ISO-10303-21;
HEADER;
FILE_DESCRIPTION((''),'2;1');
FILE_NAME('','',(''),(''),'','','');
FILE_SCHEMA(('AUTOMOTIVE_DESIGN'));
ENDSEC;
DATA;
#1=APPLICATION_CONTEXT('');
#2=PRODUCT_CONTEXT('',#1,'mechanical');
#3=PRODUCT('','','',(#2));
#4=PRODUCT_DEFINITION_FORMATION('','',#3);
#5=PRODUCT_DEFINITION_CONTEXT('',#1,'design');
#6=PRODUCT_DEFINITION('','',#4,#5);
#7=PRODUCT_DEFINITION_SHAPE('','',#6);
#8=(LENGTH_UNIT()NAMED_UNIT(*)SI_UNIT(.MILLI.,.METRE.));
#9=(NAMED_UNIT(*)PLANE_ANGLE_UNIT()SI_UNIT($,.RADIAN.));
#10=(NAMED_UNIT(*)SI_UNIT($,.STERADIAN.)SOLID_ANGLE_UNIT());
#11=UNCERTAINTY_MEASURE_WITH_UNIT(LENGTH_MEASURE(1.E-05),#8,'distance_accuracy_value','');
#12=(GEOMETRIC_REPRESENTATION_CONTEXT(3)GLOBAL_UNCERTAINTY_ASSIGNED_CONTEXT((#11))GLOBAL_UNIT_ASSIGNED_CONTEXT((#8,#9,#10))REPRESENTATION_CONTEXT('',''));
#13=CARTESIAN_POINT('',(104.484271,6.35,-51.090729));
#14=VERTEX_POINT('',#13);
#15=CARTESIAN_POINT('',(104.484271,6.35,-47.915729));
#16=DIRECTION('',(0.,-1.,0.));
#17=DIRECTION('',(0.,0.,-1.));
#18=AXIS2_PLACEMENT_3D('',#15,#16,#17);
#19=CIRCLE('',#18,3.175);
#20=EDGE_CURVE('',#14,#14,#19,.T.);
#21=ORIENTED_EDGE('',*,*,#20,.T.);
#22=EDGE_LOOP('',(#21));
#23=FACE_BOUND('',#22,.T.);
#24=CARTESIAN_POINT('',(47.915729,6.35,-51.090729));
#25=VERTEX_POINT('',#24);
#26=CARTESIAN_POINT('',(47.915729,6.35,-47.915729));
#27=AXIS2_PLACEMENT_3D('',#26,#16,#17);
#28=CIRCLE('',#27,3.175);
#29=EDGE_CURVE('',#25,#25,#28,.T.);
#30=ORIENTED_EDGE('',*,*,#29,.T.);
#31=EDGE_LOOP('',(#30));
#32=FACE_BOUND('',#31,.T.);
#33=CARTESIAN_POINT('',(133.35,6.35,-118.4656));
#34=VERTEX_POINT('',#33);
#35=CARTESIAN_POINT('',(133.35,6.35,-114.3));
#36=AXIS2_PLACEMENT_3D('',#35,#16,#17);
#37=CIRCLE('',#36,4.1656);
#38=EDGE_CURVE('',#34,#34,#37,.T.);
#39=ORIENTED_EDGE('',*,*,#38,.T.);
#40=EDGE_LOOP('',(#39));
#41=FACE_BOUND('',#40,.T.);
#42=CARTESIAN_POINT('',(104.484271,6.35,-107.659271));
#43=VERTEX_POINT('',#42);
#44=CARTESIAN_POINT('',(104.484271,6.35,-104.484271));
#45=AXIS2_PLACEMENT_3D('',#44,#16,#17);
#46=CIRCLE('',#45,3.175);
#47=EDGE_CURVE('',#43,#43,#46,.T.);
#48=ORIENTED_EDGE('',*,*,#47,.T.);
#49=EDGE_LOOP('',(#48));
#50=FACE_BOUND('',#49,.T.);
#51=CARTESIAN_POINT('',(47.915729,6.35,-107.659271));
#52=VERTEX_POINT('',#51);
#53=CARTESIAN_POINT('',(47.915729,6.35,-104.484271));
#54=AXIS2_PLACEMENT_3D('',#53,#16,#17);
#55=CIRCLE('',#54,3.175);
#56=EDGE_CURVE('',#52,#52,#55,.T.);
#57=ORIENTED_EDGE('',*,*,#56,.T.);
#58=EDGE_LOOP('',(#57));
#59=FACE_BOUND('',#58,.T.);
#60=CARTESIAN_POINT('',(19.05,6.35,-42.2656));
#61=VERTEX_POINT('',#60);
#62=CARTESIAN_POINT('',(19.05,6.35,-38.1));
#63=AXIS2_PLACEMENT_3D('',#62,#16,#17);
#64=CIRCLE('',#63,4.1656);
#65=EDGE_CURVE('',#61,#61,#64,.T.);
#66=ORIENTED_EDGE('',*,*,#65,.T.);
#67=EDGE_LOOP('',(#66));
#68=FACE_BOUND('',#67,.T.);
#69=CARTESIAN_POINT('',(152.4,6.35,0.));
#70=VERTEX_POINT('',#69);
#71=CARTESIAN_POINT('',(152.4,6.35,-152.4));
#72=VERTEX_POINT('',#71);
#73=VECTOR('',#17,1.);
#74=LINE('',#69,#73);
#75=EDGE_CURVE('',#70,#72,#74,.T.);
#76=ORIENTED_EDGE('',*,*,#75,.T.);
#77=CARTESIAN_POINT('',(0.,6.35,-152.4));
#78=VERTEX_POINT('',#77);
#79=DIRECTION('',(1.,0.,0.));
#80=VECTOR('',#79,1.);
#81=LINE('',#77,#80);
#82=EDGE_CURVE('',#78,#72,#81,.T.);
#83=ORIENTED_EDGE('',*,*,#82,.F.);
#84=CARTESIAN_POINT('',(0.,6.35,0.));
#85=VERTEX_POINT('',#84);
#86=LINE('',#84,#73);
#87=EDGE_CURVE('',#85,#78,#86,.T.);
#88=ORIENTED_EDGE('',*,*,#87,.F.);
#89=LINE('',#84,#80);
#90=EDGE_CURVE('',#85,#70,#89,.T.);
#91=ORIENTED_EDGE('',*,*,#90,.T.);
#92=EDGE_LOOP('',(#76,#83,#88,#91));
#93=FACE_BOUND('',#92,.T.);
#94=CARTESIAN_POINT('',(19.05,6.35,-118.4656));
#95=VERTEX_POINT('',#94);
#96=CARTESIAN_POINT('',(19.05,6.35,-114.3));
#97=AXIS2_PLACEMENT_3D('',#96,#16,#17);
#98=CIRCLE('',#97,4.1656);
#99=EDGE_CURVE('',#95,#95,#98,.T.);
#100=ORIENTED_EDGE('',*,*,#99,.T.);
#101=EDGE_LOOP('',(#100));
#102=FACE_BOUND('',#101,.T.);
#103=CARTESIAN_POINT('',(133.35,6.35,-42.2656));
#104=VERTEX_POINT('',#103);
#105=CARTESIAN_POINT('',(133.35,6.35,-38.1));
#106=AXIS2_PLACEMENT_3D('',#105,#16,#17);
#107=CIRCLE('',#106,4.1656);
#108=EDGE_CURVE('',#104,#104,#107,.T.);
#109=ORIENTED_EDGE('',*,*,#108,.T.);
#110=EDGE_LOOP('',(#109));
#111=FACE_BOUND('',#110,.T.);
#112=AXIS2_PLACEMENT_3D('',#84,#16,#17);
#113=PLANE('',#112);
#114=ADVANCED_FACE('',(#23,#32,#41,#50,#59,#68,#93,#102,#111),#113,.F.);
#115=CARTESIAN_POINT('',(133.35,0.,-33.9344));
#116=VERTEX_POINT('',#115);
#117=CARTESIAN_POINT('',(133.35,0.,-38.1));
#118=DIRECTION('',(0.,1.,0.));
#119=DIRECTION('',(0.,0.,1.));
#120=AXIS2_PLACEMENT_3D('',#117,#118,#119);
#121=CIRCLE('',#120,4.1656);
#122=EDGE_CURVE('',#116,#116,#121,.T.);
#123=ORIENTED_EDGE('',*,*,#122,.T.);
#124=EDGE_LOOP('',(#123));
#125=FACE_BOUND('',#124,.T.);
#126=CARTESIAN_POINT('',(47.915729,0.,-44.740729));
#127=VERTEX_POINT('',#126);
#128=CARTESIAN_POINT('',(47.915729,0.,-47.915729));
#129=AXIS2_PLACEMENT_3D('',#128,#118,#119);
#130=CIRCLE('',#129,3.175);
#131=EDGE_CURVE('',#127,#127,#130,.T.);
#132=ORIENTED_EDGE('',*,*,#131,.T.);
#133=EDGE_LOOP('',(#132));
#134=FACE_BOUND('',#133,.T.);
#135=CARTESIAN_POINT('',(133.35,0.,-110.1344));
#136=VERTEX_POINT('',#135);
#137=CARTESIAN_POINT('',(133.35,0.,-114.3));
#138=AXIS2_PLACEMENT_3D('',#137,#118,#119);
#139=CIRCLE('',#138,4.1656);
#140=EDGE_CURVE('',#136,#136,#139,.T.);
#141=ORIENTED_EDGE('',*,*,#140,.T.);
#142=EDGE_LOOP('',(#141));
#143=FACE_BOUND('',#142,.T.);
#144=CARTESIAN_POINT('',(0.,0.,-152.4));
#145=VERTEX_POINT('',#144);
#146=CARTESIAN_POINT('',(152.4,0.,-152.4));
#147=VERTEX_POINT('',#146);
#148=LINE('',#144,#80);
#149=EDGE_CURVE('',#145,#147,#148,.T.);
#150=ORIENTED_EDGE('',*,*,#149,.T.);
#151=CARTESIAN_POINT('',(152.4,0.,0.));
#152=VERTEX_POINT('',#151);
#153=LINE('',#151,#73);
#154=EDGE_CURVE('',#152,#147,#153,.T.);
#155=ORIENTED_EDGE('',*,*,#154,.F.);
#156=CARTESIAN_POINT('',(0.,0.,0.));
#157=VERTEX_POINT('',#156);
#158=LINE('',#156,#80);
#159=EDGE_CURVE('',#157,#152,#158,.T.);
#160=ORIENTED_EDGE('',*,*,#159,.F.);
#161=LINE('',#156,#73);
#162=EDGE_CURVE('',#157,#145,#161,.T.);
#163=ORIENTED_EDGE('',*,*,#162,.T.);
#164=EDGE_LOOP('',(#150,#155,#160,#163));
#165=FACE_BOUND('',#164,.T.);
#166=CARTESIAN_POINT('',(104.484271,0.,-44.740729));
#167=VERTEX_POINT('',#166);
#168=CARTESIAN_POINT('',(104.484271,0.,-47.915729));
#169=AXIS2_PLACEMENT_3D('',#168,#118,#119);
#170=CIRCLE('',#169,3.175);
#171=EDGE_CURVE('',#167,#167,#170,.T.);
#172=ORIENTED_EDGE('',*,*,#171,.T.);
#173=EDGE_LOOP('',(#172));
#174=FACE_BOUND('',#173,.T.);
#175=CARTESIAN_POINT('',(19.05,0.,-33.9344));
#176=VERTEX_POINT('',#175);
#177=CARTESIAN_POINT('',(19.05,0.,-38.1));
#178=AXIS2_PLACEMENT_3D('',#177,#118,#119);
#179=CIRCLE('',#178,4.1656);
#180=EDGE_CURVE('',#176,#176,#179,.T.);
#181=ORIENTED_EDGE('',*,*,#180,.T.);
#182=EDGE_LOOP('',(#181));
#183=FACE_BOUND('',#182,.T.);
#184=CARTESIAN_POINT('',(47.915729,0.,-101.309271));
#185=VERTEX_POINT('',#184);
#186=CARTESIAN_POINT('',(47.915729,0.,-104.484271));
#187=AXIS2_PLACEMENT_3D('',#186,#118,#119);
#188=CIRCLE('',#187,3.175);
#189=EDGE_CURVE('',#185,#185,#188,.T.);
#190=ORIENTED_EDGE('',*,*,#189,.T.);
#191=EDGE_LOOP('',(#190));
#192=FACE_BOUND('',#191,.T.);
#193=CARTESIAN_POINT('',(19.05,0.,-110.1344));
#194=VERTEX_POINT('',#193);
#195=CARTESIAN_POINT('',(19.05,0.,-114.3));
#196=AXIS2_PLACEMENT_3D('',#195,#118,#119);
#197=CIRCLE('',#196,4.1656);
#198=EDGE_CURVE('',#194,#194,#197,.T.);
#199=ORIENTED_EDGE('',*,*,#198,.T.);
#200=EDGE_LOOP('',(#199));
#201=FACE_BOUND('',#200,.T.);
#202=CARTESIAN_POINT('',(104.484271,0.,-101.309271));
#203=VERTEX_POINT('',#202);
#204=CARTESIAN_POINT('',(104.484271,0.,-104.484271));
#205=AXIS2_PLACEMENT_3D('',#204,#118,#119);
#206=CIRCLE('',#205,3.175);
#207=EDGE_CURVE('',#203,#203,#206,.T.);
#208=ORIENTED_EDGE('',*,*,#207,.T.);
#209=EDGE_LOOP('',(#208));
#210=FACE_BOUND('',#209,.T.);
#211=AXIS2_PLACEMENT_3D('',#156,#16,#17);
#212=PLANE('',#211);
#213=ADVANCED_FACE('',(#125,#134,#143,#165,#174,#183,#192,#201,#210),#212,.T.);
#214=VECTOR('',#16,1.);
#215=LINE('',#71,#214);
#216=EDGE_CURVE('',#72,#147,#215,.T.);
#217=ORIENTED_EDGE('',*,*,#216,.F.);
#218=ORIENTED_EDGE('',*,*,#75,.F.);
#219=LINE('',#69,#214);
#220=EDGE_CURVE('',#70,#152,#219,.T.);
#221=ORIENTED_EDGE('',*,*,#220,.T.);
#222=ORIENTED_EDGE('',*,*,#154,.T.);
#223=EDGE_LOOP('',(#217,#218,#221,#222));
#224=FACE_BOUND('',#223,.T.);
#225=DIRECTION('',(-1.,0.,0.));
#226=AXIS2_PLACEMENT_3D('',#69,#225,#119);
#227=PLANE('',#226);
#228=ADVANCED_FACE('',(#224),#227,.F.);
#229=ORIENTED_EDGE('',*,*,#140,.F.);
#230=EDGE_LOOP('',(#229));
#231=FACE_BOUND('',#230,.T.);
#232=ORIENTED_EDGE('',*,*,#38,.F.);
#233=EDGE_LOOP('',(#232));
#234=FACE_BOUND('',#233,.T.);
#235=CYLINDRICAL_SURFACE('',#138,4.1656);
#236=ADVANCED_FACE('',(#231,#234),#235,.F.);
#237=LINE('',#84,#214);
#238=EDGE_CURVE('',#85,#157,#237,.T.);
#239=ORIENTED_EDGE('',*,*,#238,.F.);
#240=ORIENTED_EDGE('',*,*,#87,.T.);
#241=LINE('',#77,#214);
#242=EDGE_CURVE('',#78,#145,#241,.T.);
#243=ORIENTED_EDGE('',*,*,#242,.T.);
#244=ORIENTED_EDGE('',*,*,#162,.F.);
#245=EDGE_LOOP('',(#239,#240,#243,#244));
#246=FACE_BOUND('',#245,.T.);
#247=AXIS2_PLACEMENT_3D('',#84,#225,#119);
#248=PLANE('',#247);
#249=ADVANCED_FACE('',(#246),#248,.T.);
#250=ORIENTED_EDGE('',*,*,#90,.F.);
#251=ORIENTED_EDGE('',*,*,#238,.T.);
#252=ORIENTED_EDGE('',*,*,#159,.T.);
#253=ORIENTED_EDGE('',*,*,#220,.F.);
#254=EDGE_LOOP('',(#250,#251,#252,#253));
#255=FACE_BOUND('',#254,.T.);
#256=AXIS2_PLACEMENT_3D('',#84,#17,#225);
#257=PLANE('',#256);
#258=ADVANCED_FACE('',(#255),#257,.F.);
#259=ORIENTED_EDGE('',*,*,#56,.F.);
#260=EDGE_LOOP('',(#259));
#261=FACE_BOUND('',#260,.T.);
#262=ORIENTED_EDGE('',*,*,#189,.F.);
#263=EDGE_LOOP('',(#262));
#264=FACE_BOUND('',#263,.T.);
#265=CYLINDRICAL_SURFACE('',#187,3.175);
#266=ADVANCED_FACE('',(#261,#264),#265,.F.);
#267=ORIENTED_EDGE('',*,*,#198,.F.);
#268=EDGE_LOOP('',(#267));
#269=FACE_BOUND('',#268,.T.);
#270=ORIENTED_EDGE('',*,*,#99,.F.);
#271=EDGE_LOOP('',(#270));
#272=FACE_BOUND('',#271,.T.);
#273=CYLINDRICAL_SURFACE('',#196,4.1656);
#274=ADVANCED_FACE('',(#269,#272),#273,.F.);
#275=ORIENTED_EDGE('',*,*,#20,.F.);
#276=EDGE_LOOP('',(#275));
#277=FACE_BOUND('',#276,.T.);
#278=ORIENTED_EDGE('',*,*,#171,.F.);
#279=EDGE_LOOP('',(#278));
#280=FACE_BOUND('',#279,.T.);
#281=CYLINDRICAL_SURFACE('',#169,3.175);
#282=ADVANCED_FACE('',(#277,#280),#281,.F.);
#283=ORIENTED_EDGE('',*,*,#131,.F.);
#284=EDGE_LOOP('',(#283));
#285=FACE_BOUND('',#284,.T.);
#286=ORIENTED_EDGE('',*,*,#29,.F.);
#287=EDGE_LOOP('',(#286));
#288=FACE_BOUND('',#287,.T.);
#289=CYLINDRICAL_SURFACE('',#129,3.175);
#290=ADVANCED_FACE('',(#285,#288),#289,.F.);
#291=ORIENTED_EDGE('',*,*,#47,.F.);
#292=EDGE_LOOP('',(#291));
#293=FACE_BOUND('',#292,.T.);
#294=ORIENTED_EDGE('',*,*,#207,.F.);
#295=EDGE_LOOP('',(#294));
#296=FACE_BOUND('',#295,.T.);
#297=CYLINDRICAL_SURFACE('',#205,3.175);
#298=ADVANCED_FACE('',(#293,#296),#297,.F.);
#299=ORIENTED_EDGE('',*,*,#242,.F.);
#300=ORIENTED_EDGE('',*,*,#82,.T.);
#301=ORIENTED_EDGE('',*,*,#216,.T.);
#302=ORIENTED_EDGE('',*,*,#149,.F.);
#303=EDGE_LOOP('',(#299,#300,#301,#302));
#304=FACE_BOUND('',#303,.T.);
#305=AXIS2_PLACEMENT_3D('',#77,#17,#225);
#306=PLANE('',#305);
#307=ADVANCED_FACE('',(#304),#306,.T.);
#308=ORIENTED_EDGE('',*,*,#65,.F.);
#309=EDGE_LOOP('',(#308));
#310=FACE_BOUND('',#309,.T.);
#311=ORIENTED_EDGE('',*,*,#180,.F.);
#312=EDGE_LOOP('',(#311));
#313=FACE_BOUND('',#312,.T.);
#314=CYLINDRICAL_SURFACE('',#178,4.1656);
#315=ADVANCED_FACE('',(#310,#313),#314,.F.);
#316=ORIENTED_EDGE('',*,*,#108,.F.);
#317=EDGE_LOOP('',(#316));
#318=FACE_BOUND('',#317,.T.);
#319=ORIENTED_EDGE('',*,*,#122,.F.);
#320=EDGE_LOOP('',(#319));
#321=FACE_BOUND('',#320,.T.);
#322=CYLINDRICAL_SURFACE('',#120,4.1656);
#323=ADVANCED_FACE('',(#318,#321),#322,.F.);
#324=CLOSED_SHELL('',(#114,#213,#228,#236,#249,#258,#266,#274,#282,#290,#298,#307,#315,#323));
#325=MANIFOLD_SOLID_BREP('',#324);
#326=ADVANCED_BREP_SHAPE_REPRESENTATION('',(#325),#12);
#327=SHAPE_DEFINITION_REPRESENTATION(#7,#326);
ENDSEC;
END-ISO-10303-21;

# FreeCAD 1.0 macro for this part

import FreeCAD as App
import Part
import Sketcher
Q = App.Units.Quantity

doc = App.newDocument("Part")
body = doc.addObject("PartDesign::Body", "Body")

sketch1 = body.newObject("Sketcher::SketchObject", "Sketch")
sketch1.AttachmentSupport = (doc.getObject("XZ_Plane"), [""])
sketch1.MapMode = "FlatFace"
sketch1.addGeometry([
    Part.LineSegment(App.Vector(0, -152.4, 0), App.Vector(0, 0, 0)),
    Part.LineSegment(App.Vector(0, 0, 0), App.Vector(152.4, 0, 0)),
    Part.LineSegment(App.Vector(152.4, 0, 0), App.Vector(152.4, -152.4, 0)),
    Part.LineSegment(App.Vector(152.4, -152.4, 0), App.Vector(0, -152.4, 0)),
], False)
sketch1.addConstraint([
    Sketcher.Constraint("Coincident", 0, 2, 1, 1),
    Sketcher.Constraint("Coincident", 1, 2, 2, 1),
    Sketcher.Constraint("Coincident", 2, 2, 3, 1),
    Sketcher.Constraint("Coincident", 3, 2, 0, 1),
    Sketcher.Constraint("Vertical", 0),
    Sketcher.Constraint("Horizontal", 1),
    Sketcher.Constraint("Vertical", 2),
    Sketcher.Constraint("Horizontal", 3),
    Sketcher.Constraint("Coincident", 0, 2, -1, 1),
    Sketcher.Constraint("Equal", 3, 0),
    Sketcher.Constraint("DistanceX", 1, 1, 1, 2, Q("6 in")),
])
pad1 = body.newObject("PartDesign::Pad", "Pad")
pad1.Profile = sketch1
pad1.Length = Q("0.25 in")
pad1.Reversed = True

sketch2 = body.newObject("Sketcher::SketchObject", "Sketch001")
sketch2.AttachmentSupport = (doc.getObject("XZ_Plane"), [""])
sketch2.MapMode = "FlatFace"
sketch2.AttachmentOffset = App.Placement(App.Vector(0, 0, -0.25 * 25.4), App.Rotation())
sketch2.addGeometry([
    Part.Circle(App.Vector(19.05, -38.1, 0), App.Vector(0, 0, 1), 4.1656),
    Part.Circle(App.Vector(19.05, -114.3, 0), App.Vector(0, 0, 1), 4.1656),
    Part.Circle(App.Vector(133.35, -114.3, 0), App.Vector(0, 0, 1), 4.1656),
    Part.Circle(App.Vector(133.35, -38.1, 0), App.Vector(0, 0, 1), 4.1656),
    Part.Circle(App.Vector(104.484271, -104.484271, 0), App.Vector(0, 0, 1), 3.175),
    Part.Circle(App.Vector(47.915729, -47.915729, 0), App.Vector(0, 0, 1), 3.175),
    Part.Circle(App.Vector(47.915729, -104.484271, 0), App.Vector(0, 0, 1), 3.175),
    Part.Circle(App.Vector(104.484271, -47.915729, 0), App.Vector(0, 0, 1), 3.175),
], False)
sketch2.addConstraint([
    Sketcher.Constraint("Equal", 0, 1),
    Sketcher.Constraint("Equal", 1, 2),
    Sketcher.Constraint("Equal", 2, 3),
    Sketcher.Constraint("Equal", 4, 5),
    Sketcher.Constraint("Equal", 5, 6),
    Sketcher.Constraint("Equal", 6, 7),
    Sketcher.Constraint("Horizontal", 1, 3, 2, 3),
    Sketcher.Constraint("Horizontal", 0, 3, 3, 3),
    Sketcher.Constraint("Horizontal", 4, 3, 6, 3),
    Sketcher.Constraint("Horizontal", 5, 3, 7, 3),
    Sketcher.Constraint("Vertical", 0, 3, 1, 3),
    Sketcher.Constraint("Vertical", 2, 3, 3, 3),
    Sketcher.Constraint("Vertical", 5, 3, 6, 3),
    Sketcher.Constraint("Vertical", 4, 3, 7, 3),
    Sketcher.Constraint("Diameter", 4, Q("0.25 in")),
    Sketcher.Constraint("Diameter", 0, Q("0.328 in")),
    Sketcher.Constraint("DistanceY", 1, 3, 0, 3, Q("3 in")),
    Sketcher.Constraint("DistanceY", 0, 3, -1, 1, Q("1.5 in")),
    Sketcher.Constraint("DistanceX", 1, 3, 2, 3, Q("4.5 in")),
    Sketcher.Constraint("DistanceX", -1, 1, 0, 3, Q("0.75 in")),
    Sketcher.Constraint("DistanceX", -1, 1, 4, 3, 104.484271),
    Sketcher.Constraint("DistanceY", 4, 3, -1, 1, 104.484271),
    Sketcher.Constraint("DistanceX", -1, 1, 5, 3, 47.915729),
    Sketcher.Constraint("DistanceY", 5, 3, -1, 1, 47.915729),
])
pocket1 = body.newObject("PartDesign::Pocket", "Pocket")
pocket1.Profile = sketch2
pocket1.Type = "ThroughAll"
pocket1.Midplane = True

doc.recompute()
